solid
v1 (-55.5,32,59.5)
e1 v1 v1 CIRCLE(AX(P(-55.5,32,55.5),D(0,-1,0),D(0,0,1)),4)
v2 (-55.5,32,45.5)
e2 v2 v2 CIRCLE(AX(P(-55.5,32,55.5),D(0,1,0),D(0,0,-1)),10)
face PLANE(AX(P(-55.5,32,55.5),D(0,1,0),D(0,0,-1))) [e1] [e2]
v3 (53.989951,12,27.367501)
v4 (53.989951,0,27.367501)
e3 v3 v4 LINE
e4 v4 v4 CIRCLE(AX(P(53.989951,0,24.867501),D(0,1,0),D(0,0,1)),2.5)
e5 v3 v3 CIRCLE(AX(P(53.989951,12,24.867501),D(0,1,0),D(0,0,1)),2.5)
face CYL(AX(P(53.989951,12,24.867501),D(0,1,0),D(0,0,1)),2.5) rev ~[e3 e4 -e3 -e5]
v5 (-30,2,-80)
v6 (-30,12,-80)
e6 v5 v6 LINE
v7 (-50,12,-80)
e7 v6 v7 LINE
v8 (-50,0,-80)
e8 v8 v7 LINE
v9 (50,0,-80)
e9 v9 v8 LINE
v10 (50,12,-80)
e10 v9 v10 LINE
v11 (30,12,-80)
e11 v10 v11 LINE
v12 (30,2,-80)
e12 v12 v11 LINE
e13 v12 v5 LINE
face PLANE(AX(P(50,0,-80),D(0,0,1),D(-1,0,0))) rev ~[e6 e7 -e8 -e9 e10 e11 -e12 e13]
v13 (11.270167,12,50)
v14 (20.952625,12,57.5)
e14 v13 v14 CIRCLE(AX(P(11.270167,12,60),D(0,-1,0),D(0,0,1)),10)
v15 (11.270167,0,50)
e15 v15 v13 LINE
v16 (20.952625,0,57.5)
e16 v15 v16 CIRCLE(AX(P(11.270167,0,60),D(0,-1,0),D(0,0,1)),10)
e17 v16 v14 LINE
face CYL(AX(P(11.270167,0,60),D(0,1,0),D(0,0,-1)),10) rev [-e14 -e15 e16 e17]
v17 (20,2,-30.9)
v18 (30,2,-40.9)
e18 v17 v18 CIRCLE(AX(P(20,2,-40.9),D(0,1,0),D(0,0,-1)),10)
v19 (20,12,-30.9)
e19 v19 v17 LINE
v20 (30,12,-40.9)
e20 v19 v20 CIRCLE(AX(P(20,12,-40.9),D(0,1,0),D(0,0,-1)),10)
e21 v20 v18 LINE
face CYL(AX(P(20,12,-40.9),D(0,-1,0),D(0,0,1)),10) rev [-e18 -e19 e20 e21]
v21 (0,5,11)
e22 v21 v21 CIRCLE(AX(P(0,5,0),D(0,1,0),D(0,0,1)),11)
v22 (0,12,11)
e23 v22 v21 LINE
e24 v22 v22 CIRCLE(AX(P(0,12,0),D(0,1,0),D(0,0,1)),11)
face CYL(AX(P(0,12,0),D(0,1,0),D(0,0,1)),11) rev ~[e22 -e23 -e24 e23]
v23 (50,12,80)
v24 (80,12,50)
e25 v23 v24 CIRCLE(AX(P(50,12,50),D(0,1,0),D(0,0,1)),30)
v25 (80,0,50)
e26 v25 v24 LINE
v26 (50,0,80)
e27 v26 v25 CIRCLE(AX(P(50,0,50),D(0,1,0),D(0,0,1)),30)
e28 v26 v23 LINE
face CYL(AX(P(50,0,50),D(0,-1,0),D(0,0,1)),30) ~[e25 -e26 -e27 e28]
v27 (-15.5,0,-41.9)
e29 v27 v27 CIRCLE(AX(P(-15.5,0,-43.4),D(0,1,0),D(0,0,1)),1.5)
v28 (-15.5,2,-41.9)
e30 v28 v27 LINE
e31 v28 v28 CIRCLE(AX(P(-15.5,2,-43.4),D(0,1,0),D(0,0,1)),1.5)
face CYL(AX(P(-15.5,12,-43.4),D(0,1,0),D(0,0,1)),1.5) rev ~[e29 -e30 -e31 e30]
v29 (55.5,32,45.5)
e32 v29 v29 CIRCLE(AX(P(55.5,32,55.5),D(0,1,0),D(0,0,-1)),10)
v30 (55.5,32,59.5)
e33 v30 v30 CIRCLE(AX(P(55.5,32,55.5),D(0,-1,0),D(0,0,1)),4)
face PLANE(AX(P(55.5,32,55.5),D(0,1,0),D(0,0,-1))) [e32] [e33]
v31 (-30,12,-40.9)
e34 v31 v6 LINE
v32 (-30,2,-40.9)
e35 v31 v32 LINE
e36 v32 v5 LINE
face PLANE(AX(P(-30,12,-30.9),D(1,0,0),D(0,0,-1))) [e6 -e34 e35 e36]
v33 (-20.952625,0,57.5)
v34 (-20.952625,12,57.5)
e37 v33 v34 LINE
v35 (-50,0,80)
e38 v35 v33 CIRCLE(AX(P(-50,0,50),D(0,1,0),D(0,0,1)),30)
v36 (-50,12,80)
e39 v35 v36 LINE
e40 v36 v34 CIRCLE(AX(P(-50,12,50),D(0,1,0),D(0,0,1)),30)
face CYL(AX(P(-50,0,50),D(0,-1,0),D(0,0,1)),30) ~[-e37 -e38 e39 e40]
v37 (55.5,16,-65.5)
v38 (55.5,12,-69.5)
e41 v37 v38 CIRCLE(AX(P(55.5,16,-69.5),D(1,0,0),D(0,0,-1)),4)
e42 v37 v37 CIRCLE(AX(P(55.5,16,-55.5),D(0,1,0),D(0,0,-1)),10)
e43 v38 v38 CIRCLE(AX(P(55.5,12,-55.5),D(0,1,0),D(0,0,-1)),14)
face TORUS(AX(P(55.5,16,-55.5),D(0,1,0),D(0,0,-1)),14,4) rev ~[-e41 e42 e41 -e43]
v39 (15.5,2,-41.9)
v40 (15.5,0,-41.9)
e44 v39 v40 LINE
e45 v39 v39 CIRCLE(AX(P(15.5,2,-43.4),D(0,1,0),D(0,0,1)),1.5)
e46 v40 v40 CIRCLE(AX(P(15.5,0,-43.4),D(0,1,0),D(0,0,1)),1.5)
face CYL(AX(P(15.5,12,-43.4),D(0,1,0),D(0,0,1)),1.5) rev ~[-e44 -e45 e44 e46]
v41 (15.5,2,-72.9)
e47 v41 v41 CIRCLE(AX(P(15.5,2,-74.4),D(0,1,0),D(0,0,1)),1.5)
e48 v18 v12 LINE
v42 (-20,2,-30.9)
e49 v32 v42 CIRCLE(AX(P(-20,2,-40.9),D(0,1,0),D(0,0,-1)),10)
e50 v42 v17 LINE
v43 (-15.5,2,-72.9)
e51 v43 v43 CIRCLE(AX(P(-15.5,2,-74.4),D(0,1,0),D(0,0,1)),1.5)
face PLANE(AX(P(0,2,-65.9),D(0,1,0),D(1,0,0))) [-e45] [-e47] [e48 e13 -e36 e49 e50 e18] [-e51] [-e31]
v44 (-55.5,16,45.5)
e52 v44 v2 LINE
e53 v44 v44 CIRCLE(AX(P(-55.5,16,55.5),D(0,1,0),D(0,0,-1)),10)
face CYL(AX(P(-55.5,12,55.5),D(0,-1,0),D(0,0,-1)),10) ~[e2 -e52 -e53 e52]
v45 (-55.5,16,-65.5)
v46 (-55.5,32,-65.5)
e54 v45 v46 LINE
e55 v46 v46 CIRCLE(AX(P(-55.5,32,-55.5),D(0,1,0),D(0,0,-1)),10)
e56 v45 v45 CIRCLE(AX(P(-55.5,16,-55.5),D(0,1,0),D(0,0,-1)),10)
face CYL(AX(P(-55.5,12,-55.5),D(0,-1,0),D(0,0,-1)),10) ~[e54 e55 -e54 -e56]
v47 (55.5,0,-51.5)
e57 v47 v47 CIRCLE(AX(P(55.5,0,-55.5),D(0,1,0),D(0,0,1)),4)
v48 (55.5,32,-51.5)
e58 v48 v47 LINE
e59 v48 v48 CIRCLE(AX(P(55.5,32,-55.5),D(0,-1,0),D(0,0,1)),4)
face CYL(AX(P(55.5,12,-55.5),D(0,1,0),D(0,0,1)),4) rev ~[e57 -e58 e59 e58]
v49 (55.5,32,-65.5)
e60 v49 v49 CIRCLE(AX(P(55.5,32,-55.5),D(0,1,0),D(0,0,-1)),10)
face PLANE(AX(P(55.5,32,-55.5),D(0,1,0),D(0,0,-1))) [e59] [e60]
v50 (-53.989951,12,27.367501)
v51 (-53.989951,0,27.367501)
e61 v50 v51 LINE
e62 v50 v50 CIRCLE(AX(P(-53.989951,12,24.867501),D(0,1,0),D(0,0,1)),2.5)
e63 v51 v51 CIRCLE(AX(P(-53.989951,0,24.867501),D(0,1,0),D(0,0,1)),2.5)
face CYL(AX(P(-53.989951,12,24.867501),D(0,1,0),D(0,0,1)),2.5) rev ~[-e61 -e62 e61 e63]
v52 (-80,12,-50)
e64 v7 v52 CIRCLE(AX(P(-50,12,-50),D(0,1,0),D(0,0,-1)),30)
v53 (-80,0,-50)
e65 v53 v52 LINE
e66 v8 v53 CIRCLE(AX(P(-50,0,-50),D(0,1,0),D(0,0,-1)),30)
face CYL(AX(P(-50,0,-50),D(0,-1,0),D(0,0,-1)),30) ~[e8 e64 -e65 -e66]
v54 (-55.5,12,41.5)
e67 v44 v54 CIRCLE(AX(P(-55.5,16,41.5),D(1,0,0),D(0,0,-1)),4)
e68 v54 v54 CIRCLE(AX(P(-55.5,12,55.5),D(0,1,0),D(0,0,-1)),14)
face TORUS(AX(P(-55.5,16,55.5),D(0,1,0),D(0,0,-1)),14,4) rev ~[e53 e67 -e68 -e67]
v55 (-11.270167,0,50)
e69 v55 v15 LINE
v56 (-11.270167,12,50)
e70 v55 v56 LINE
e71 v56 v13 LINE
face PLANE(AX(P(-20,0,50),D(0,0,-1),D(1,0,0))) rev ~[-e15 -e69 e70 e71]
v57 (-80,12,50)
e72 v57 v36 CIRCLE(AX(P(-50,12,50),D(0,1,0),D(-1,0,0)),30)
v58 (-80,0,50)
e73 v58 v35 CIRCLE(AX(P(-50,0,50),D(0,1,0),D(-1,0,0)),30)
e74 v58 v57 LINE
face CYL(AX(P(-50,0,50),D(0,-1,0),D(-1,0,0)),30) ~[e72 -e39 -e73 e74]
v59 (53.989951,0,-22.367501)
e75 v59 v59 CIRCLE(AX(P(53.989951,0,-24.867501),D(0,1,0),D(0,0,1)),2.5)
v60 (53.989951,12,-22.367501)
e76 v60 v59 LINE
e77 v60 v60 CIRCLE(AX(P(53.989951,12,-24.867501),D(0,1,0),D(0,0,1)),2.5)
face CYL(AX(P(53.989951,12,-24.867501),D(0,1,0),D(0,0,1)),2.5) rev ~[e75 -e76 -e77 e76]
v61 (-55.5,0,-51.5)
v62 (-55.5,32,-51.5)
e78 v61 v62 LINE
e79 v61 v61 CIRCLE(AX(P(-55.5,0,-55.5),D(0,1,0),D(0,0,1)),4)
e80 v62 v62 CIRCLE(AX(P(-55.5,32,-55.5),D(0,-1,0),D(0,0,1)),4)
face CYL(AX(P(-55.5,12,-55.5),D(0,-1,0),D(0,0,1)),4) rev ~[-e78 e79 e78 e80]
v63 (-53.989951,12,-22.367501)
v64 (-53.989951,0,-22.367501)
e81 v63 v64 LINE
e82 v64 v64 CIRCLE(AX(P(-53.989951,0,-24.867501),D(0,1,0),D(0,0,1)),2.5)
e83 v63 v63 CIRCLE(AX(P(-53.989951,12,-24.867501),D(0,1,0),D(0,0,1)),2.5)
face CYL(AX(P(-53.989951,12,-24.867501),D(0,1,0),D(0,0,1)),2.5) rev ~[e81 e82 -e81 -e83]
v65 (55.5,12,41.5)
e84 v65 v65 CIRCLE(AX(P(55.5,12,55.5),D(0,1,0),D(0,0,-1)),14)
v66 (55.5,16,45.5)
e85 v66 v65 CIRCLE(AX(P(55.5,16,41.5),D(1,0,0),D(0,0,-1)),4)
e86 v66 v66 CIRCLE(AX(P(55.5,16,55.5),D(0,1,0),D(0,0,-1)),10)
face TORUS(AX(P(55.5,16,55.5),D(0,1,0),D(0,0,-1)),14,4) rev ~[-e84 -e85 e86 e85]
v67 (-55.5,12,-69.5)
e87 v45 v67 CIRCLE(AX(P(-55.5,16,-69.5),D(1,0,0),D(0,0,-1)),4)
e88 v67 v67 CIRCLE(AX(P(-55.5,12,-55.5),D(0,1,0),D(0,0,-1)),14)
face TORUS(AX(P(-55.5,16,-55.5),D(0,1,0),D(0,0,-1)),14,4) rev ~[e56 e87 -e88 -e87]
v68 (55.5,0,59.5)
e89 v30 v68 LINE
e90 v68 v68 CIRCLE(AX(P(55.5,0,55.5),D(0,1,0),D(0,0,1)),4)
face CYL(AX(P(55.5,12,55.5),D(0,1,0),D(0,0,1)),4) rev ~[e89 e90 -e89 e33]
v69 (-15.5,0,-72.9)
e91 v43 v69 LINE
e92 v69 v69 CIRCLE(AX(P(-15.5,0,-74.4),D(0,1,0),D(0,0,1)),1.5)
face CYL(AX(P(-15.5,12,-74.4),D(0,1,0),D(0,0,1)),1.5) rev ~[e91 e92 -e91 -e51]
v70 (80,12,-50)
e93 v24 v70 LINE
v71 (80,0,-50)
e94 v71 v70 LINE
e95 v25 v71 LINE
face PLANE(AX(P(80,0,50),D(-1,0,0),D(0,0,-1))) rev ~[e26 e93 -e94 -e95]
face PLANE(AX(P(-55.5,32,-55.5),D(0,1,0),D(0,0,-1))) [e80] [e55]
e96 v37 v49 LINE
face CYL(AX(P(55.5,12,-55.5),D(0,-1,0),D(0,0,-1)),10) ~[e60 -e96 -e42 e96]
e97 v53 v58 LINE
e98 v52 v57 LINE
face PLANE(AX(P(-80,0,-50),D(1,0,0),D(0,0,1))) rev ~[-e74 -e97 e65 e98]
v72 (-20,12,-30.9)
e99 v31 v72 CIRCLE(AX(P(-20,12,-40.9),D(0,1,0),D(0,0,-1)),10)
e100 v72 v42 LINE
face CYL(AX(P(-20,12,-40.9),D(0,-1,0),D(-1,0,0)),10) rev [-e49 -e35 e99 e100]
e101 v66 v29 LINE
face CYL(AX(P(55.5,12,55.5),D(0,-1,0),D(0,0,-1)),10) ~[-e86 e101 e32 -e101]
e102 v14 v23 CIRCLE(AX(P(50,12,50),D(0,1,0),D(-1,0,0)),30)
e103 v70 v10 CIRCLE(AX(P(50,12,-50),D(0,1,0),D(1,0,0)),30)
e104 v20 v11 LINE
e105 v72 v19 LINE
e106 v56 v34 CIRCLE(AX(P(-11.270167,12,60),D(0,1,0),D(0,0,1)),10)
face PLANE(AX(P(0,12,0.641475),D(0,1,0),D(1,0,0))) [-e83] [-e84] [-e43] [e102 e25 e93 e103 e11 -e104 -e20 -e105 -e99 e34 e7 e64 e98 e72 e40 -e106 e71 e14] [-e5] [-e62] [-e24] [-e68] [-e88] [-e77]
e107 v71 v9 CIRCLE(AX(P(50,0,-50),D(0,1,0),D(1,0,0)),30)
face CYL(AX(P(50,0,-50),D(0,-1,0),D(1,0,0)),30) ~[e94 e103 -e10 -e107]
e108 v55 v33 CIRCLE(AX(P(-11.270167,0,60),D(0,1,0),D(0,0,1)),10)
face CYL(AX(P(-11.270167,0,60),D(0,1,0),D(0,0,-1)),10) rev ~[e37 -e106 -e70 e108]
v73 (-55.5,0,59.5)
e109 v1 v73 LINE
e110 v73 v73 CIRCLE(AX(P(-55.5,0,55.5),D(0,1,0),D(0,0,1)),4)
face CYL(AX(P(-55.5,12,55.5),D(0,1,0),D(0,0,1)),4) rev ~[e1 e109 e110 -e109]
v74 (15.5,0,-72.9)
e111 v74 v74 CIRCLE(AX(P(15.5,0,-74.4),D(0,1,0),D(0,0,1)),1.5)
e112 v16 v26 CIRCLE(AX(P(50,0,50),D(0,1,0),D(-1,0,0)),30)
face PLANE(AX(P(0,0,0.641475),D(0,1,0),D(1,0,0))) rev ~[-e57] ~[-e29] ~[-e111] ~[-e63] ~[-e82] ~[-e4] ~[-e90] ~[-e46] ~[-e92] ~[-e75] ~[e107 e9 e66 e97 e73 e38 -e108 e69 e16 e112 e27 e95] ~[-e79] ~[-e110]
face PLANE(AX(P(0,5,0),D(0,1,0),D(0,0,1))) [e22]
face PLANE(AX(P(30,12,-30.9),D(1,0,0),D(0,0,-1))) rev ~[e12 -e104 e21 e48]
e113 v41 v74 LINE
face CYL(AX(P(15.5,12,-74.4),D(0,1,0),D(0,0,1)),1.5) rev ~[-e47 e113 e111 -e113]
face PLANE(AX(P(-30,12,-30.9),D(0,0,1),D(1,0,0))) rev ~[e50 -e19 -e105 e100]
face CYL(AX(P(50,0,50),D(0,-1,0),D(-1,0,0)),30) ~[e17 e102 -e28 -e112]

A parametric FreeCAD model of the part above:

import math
import FreeCAD as App
import Part
import Sketcher

V = App.Vector


def edges_at(feature, points):
    """Names of the edges that pass closest to the given points."""
    edges = feature.Shape.Edges
    near = lambda p: min(range(len(edges)), key=lambda i: edges[i].distToShape(Part.Vertex(*p))[0])
    return sorted({f"Edge{near(p) + 1}" for p in points})

doc = App.newDocument("Part")
body = doc.addObject("PartDesign::Body", "Body")

# Sketch on XZ plane
sketch1 = doc.addObject("Sketcher::SketchObject", "Sketch")
body.addObject(sketch1)
sketch1.AttachmentSupport = (doc.XZ_Plane, [""])
sketch1.MapMode = "FlatFace"
sketch1.addGeometry([
    Part.LineSegment(V(-20, 50, 0), V(20, 50, 0)),  # 0
    Part.ArcOfCircle(Part.Circle(V(50, 50, 0), V(0, 0, 1), 30), math.radians(90), math.radians(180)),  # 1
    Part.ArcOfCircle(Part.Circle(V(50, 50, 0), V(0, 0, 1), 30), math.radians(0), math.radians(90)),  # 2
    Part.LineSegment(V(80, 50, 0), V(80, -50, 0)),  # 3
    Part.ArcOfCircle(Part.Circle(V(50, -50, 0), V(0, 0, 1), 30), math.radians(-90), math.radians(0)),  # 4
    Part.LineSegment(V(50, -80, 0), V(-50, -80, 0)),  # 5
    Part.ArcOfCircle(Part.Circle(V(-50, -50, 0), V(0, 0, 1), 30), math.radians(180), math.radians(270)),  # 6
    Part.LineSegment(V(-80, -50, 0), V(-80, 50, 0)),  # 7
    Part.ArcOfCircle(Part.Circle(V(-50, 50, 0), V(0, 0, 1), 30), math.radians(90), math.radians(180)),  # 8
    Part.ArcOfCircle(Part.Circle(V(-50, 50, 0), V(0, 0, 1), 30), math.radians(0), math.radians(90)),  # 9
], False)
sketch1.addConstraint([
    Sketcher.Constraint("Coincident", 0, 2, 1, 2),
    Sketcher.Constraint("Tangent", 1, 1, 2, 2),
    Sketcher.Constraint("Tangent", 2, 1, 3, 1),
    Sketcher.Constraint("Tangent", 3, 2, 4, 2),
    Sketcher.Constraint("Tangent", 4, 1, 5, 1),
    Sketcher.Constraint("Tangent", 5, 2, 6, 2),
    Sketcher.Constraint("Tangent", 6, 1, 7, 1),
    Sketcher.Constraint("Tangent", 7, 2, 8, 2),
    Sketcher.Constraint("Tangent", 8, 1, 9, 2),
    Sketcher.Constraint("Coincident", 9, 1, 0, 1),
    Sketcher.Constraint("Horizontal", 0),
    Sketcher.Constraint("Vertical", 3),
    Sketcher.Constraint("Horizontal", 5),
    Sketcher.Constraint("Vertical", 7),
    Sketcher.Constraint("Equal", 1, 2),
    Sketcher.Constraint("Equal", 2, 4),
    Sketcher.Constraint("Equal", 4, 6),
    Sketcher.Constraint("Equal", 6, 8),
    Sketcher.Constraint("Equal", 8, 9),
    Sketcher.Constraint("Symmetric", 1, 3, 6, 3, -1, 1),
    Sketcher.Constraint("Symmetric", 4, 1, 8, 1, -1, 1),
    Sketcher.Constraint("Horizontal", 9, 3, 0, 2),
    Sketcher.Constraint("Vertical", 4, 3, 1, 1),
    Sketcher.Constraint("Equal", 5, 3),
    Sketcher.Constraint("Radius", 1, 30.0),
    Sketcher.Constraint("DistanceX", 0, 1, 0, 2, 40.0),
])
pad1 = doc.addObject("PartDesign::Pad", "Pad")
body.addObject(pad1)
pad1.Profile = sketch1
pad1.Length = 12
pad1.Reversed = True
doc.recompute()

fillet = doc.addObject("PartDesign::Fillet", "Fillet")
body.addObject(fillet)
fillet.Base = (pad1, edges_at(pad1, [(20, 6, 50), (-20, 6, 50)]))
fillet.Radius = 10

# Sketch on XZ plane
sketch2 = doc.addObject("Sketcher::SketchObject", "Sketch001")
body.addObject(sketch2)
sketch2.AttachmentSupport = (doc.XZ_Plane, [""])
sketch2.MapMode = "FlatFace"
sketch2.AttachmentOffset = App.Placement(V(0, 0, -12), App.Rotation())
sketch2.addGeometry([
    Part.Circle(V(-55.5, -55.5, 0), V(0, 0, 1), 4),
    Part.Circle(V(55.5, -55.5, 0), V(0, 0, 1), 4),
    Part.Circle(V(-55.5, 55.5, 0), V(0, 0, 1), 4),
    Part.Circle(V(55.5, 55.5, 0), V(0, 0, 1), 4),
], False)
sketch2.addConstraint([
    Sketcher.Constraint("Equal", 0, 1),
    Sketcher.Constraint("Equal", 1, 2),
    Sketcher.Constraint("Equal", 2, 3),
    Sketcher.Constraint("Symmetric", 1, 3, 2, 3, -1, 1),
    Sketcher.Constraint("Symmetric", 0, 3, 3, 3, -1, 1),
    Sketcher.Constraint("Symmetric", 0, 3, 1, 3, -2),
    Sketcher.Constraint("Diameter", 0, 8.0),
    Sketcher.Constraint("DistanceX", 0, 3, 1, 3, 111.0),
    Sketcher.Constraint("DistanceY", 0, 3, 2, 3, 111.0),
])
pocket1 = doc.addObject("PartDesign::Pocket", "Pocket")
body.addObject(pocket1)
pocket1.Profile = sketch2
pocket1.Type = "ThroughAll"
pocket1.Reversed = True

# Sketch on XZ plane
sketch3 = doc.addObject("Sketcher::SketchObject", "Sketch002")
body.addObject(sketch3)
sketch3.AttachmentSupport = (doc.XZ_Plane, [""])
sketch3.MapMode = "FlatFace"
sketch3.AttachmentOffset = App.Placement(V(0, 0, -12), App.Rotation())
sketch3.addGeometry([
    Part.Circle(V(-56, -56, 0), V(0, 0, 1), 10),
    Part.Circle(V(56, -56, 0), V(0, 0, 1), 10),
    Part.Circle(V(-56, 56, 0), V(0, 0, 1), 10),
    Part.Circle(V(56, 56, 0), V(0, 0, 1), 10),
], False)
sketch3.addConstraint([
    Sketcher.Constraint("Equal", 0, 1),
    Sketcher.Constraint("Equal", 1, 2),
    Sketcher.Constraint("Equal", 2, 3),
    Sketcher.Constraint("Symmetric", 1, 3, 2, 3, -1, 1),
    Sketcher.Constraint("Symmetric", 0, 3, 3, 3, -1, 1),
    Sketcher.Constraint("Symmetric", 0, 3, 1, 3, -2),
    Sketcher.Constraint("Diameter", 0, 20.0),
    Sketcher.Constraint("DistanceX", 0, 3, 1, 3, 111.0),
    Sketcher.Constraint("DistanceY", 0, 3, 2, 3, 111.0),
])
pad2 = doc.addObject("PartDesign::Pad", "Pad001")
body.addObject(pad2)
pad2.Profile = sketch3
pad2.Length = 20
pad2.Reversed = True

# Sketch on XZ plane
sketch4 = doc.addObject("Sketcher::SketchObject", "Sketch003")
body.addObject(sketch4)
sketch4.AttachmentSupport = (doc.XZ_Plane, [""])
sketch4.MapMode = "FlatFace"
sketch4.AttachmentOffset = App.Placement(V(0, 0, -12), App.Rotation())
sketch4.addGeometry([
    Part.Circle(V(-55.5, -55.5, 0), V(0, 0, 1), 4),
    Part.Circle(V(-55.5, 55.5, 0), V(0, 0, 1), 4),
    Part.Circle(V(55.5, 55.5, 0), V(0, 0, 1), 4),
    Part.Circle(V(55.5, -55.5, 0), V(0, 0, 1), 4),
], False)
sketch4.addConstraint([
    Sketcher.Constraint("Equal", 0, 1),
    Sketcher.Constraint("Equal", 1, 2),
    Sketcher.Constraint("Equal", 2, 3),
    Sketcher.Constraint("Symmetric", 0, 3, 2, 3, -1, 1),
    Sketcher.Constraint("Symmetric", 1, 3, 3, 3, -1, 1),
    Sketcher.Constraint("Symmetric", 1, 3, 2, 3, -2),
    Sketcher.Constraint("Diameter", 0, 8.0),
    Sketcher.Constraint("DistanceY", 0, 3, 1, 3, 111.0),
    Sketcher.Constraint("DistanceX", 1, 3, 2, 3, 111.0),
])
pocket2 = doc.addObject("PartDesign::Pocket", "Pocket001")
body.addObject(pocket2)
pocket2.Profile = sketch4
pocket2.Type = "ThroughAll"
doc.recompute()

fillet2 = doc.addObject("PartDesign::Fillet", "Fillet001")
body.addObject(fillet2)
fillet2.Base = (pocket2, edges_at(pocket2, [
    (-55.5, 12, -45.5),
    (-55.5, 12, 65.5),
    (55.5, 12, 65.5),
    (55.5, 12, -45.5),
]))
fillet2.Radius = 4

# Sketch on XZ plane
sketch5 = doc.addObject("Sketcher::SketchObject", "Sketch004")
body.addObject(sketch5)
sketch5.AttachmentSupport = (doc.XZ_Plane, [""])
sketch5.MapMode = "FlatFace"
sketch5.AttachmentOffset = App.Placement(V(0, 0, -12), App.Rotation())
sketch5.addGeometry(Part.Circle(V(0, 0, 0), V(0, 0, 1), 11), False)
sketch5.addConstraint([
    Sketcher.Constraint("Coincident", 0, 3, -1, 1),
    Sketcher.Constraint("Diameter", 0, 22.0),
])
pocket3 = doc.addObject("PartDesign::Pocket", "Pocket002")
body.addObject(pocket3)
pocket3.Profile = sketch5
pocket3.Length = 7
pocket3.Reversed = True

# Sketch on XZ plane
sketch6 = doc.addObject("Sketcher::SketchObject", "Sketch005")
body.addObject(sketch6)
sketch6.AttachmentSupport = (doc.XZ_Plane, [""])
sketch6.MapMode = "FlatFace"
sketch6.AttachmentOffset = App.Placement(V(0, 0, -12), App.Rotation())
sketch6.addGeometry([
    Part.Circle(V(-15.5, -74.4, 0), V(0, 0, 1), 1.5),
    Part.Circle(V(15.5, -74.4, 0), V(0, 0, 1), 1.5),
    Part.Circle(V(-15.5, -43.4, 0), V(0, 0, 1), 1.5),
    Part.Circle(V(15.5, -43.4, 0), V(0, 0, 1), 1.5),
], False)
sketch6.addConstraint([
    Sketcher.Constraint("Equal", 0, 1),
    Sketcher.Constraint("Equal", 1, 2),
    Sketcher.Constraint("Equal", 2, 3),
    Sketcher.Constraint("Symmetric", 0, 3, 1, 3, -2),
    Sketcher.Constraint("Symmetric", 2, 3, 3, 3, -2),
    Sketcher.Constraint("Vertical", 0, 3, 2, 3),
    Sketcher.Constraint("Diameter", 0, 3.0),
    Sketcher.Constraint("DistanceX", 0, 3, 1, 3, 31.0),
    Sketcher.Constraint("DistanceY", 0, 3, 2, 3, 31.0),
    Sketcher.Constraint("DistanceY", 0, 3, -1, 1, 74.4),
])
pocket4 = doc.addObject("PartDesign::Pocket", "Pocket003")
body.addObject(pocket4)
pocket4.Profile = sketch6
pocket4.Type = "ThroughAll"
pocket4.Reversed = True

# Sketch on XZ plane
sketch7 = doc.addObject("Sketcher::SketchObject", "Sketch006")
body.addObject(sketch7)
sketch7.AttachmentSupport = (doc.XZ_Plane, [""])
sketch7.MapMode = "FlatFace"
sketch7.AttachmentOffset = App.Placement(V(0, 0, -12), App.Rotation())
sketch7.addGeometry([
    Part.LineSegment(V(-30, -101, 0), V(-30, -31, 0)),
    Part.LineSegment(V(-30, -31, 0), V(30, -31, 0)),
    Part.LineSegment(V(30, -31, 0), V(30, -101, 0)),
    Part.LineSegment(V(30, -101, 0), V(-30, -101, 0)),
], False)
sketch7.addConstraint([
    Sketcher.Constraint("Coincident", 0, 2, 1, 1),
    Sketcher.Constraint("Coincident", 1, 2, 2, 1),
    Sketcher.Constraint("Coincident", 2, 2, 3, 1),
    Sketcher.Constraint("Coincident", 3, 2, 0, 1),
    Sketcher.Constraint("Vertical", 0),
    Sketcher.Constraint("Horizontal", 1),
    Sketcher.Constraint("Vertical", 2),
    Sketcher.Constraint("Horizontal", 3),
    Sketcher.Constraint("DistanceX", 1, 1, 1, 2, 60.0),
    Sketcher.Constraint("DistanceY", 0, 1, 0, 2, 70.0),
    Sketcher.Constraint("DistanceX", 0, 2, -1, 1, 30.0),
    Sketcher.Constraint("DistanceY", 0, 2, -1, 1, 30.9),
])
pocket5 = doc.addObject("PartDesign::Pocket", "Pocket004")
body.addObject(pocket5)
pocket5.Profile = sketch7
pocket5.Length = 10
pocket5.Reversed = True
doc.recompute()

fillet3 = doc.addObject("PartDesign::Fillet", "Fillet002")
body.addObject(fillet3)
fillet3.Base = (pocket5, edges_at(pocket5, [(-30, 7, -30.9), (30, 7, -30.9)]))
fillet3.Radius = 10

# Sketch on XZ plane
sketch8 = doc.addObject("Sketcher::SketchObject", "Sketch007")
body.addObject(sketch8)
sketch8.AttachmentSupport = (doc.XZ_Plane, [""])
sketch8.MapMode = "FlatFace"
sketch8.AttachmentOffset = App.Placement(V(0, 0, -12), App.Rotation())
sketch8.addGeometry([
    Part.Circle(V(-54, -24.9, 0), V(0, 0, 1), 2.5),
    Part.Circle(V(-54, 24.9, 0), V(0, 0, 1), 2.5),
    Part.Circle(V(54, -24.9, 0), V(0, 0, 1), 2.5),
    Part.Circle(V(54, 24.9, 0), V(0, 0, 1), 2.5),
], False)
sketch8.addConstraint([
    Sketcher.Constraint("Equal", 0, 1),
    Sketcher.Constraint("Equal", 1, 2),
    Sketcher.Constraint("Equal", 2, 3),
    Sketcher.Constraint("Symmetric", 1, 3, 2, 3, -1, 1),
    Sketcher.Constraint("Symmetric", 0, 3, 3, 3, -1, 1),
    Sketcher.Constraint("Symmetric", 0, 3, 2, 3, -2),
    Sketcher.Constraint("Diameter", 0, 5.0),
    Sketcher.Constraint("DistanceY", 0, 3, 1, 3, 49.735001),
    Sketcher.Constraint("DistanceX", 0, 3, 2, 3, 107.979901),
])
pocket6 = doc.addObject("PartDesign::Pocket", "Pocket005")
body.addObject(pocket6)
pocket6.Profile = sketch8
pocket6.Type = "ThroughAll"
pocket6.Reversed = True

doc.recompute()
